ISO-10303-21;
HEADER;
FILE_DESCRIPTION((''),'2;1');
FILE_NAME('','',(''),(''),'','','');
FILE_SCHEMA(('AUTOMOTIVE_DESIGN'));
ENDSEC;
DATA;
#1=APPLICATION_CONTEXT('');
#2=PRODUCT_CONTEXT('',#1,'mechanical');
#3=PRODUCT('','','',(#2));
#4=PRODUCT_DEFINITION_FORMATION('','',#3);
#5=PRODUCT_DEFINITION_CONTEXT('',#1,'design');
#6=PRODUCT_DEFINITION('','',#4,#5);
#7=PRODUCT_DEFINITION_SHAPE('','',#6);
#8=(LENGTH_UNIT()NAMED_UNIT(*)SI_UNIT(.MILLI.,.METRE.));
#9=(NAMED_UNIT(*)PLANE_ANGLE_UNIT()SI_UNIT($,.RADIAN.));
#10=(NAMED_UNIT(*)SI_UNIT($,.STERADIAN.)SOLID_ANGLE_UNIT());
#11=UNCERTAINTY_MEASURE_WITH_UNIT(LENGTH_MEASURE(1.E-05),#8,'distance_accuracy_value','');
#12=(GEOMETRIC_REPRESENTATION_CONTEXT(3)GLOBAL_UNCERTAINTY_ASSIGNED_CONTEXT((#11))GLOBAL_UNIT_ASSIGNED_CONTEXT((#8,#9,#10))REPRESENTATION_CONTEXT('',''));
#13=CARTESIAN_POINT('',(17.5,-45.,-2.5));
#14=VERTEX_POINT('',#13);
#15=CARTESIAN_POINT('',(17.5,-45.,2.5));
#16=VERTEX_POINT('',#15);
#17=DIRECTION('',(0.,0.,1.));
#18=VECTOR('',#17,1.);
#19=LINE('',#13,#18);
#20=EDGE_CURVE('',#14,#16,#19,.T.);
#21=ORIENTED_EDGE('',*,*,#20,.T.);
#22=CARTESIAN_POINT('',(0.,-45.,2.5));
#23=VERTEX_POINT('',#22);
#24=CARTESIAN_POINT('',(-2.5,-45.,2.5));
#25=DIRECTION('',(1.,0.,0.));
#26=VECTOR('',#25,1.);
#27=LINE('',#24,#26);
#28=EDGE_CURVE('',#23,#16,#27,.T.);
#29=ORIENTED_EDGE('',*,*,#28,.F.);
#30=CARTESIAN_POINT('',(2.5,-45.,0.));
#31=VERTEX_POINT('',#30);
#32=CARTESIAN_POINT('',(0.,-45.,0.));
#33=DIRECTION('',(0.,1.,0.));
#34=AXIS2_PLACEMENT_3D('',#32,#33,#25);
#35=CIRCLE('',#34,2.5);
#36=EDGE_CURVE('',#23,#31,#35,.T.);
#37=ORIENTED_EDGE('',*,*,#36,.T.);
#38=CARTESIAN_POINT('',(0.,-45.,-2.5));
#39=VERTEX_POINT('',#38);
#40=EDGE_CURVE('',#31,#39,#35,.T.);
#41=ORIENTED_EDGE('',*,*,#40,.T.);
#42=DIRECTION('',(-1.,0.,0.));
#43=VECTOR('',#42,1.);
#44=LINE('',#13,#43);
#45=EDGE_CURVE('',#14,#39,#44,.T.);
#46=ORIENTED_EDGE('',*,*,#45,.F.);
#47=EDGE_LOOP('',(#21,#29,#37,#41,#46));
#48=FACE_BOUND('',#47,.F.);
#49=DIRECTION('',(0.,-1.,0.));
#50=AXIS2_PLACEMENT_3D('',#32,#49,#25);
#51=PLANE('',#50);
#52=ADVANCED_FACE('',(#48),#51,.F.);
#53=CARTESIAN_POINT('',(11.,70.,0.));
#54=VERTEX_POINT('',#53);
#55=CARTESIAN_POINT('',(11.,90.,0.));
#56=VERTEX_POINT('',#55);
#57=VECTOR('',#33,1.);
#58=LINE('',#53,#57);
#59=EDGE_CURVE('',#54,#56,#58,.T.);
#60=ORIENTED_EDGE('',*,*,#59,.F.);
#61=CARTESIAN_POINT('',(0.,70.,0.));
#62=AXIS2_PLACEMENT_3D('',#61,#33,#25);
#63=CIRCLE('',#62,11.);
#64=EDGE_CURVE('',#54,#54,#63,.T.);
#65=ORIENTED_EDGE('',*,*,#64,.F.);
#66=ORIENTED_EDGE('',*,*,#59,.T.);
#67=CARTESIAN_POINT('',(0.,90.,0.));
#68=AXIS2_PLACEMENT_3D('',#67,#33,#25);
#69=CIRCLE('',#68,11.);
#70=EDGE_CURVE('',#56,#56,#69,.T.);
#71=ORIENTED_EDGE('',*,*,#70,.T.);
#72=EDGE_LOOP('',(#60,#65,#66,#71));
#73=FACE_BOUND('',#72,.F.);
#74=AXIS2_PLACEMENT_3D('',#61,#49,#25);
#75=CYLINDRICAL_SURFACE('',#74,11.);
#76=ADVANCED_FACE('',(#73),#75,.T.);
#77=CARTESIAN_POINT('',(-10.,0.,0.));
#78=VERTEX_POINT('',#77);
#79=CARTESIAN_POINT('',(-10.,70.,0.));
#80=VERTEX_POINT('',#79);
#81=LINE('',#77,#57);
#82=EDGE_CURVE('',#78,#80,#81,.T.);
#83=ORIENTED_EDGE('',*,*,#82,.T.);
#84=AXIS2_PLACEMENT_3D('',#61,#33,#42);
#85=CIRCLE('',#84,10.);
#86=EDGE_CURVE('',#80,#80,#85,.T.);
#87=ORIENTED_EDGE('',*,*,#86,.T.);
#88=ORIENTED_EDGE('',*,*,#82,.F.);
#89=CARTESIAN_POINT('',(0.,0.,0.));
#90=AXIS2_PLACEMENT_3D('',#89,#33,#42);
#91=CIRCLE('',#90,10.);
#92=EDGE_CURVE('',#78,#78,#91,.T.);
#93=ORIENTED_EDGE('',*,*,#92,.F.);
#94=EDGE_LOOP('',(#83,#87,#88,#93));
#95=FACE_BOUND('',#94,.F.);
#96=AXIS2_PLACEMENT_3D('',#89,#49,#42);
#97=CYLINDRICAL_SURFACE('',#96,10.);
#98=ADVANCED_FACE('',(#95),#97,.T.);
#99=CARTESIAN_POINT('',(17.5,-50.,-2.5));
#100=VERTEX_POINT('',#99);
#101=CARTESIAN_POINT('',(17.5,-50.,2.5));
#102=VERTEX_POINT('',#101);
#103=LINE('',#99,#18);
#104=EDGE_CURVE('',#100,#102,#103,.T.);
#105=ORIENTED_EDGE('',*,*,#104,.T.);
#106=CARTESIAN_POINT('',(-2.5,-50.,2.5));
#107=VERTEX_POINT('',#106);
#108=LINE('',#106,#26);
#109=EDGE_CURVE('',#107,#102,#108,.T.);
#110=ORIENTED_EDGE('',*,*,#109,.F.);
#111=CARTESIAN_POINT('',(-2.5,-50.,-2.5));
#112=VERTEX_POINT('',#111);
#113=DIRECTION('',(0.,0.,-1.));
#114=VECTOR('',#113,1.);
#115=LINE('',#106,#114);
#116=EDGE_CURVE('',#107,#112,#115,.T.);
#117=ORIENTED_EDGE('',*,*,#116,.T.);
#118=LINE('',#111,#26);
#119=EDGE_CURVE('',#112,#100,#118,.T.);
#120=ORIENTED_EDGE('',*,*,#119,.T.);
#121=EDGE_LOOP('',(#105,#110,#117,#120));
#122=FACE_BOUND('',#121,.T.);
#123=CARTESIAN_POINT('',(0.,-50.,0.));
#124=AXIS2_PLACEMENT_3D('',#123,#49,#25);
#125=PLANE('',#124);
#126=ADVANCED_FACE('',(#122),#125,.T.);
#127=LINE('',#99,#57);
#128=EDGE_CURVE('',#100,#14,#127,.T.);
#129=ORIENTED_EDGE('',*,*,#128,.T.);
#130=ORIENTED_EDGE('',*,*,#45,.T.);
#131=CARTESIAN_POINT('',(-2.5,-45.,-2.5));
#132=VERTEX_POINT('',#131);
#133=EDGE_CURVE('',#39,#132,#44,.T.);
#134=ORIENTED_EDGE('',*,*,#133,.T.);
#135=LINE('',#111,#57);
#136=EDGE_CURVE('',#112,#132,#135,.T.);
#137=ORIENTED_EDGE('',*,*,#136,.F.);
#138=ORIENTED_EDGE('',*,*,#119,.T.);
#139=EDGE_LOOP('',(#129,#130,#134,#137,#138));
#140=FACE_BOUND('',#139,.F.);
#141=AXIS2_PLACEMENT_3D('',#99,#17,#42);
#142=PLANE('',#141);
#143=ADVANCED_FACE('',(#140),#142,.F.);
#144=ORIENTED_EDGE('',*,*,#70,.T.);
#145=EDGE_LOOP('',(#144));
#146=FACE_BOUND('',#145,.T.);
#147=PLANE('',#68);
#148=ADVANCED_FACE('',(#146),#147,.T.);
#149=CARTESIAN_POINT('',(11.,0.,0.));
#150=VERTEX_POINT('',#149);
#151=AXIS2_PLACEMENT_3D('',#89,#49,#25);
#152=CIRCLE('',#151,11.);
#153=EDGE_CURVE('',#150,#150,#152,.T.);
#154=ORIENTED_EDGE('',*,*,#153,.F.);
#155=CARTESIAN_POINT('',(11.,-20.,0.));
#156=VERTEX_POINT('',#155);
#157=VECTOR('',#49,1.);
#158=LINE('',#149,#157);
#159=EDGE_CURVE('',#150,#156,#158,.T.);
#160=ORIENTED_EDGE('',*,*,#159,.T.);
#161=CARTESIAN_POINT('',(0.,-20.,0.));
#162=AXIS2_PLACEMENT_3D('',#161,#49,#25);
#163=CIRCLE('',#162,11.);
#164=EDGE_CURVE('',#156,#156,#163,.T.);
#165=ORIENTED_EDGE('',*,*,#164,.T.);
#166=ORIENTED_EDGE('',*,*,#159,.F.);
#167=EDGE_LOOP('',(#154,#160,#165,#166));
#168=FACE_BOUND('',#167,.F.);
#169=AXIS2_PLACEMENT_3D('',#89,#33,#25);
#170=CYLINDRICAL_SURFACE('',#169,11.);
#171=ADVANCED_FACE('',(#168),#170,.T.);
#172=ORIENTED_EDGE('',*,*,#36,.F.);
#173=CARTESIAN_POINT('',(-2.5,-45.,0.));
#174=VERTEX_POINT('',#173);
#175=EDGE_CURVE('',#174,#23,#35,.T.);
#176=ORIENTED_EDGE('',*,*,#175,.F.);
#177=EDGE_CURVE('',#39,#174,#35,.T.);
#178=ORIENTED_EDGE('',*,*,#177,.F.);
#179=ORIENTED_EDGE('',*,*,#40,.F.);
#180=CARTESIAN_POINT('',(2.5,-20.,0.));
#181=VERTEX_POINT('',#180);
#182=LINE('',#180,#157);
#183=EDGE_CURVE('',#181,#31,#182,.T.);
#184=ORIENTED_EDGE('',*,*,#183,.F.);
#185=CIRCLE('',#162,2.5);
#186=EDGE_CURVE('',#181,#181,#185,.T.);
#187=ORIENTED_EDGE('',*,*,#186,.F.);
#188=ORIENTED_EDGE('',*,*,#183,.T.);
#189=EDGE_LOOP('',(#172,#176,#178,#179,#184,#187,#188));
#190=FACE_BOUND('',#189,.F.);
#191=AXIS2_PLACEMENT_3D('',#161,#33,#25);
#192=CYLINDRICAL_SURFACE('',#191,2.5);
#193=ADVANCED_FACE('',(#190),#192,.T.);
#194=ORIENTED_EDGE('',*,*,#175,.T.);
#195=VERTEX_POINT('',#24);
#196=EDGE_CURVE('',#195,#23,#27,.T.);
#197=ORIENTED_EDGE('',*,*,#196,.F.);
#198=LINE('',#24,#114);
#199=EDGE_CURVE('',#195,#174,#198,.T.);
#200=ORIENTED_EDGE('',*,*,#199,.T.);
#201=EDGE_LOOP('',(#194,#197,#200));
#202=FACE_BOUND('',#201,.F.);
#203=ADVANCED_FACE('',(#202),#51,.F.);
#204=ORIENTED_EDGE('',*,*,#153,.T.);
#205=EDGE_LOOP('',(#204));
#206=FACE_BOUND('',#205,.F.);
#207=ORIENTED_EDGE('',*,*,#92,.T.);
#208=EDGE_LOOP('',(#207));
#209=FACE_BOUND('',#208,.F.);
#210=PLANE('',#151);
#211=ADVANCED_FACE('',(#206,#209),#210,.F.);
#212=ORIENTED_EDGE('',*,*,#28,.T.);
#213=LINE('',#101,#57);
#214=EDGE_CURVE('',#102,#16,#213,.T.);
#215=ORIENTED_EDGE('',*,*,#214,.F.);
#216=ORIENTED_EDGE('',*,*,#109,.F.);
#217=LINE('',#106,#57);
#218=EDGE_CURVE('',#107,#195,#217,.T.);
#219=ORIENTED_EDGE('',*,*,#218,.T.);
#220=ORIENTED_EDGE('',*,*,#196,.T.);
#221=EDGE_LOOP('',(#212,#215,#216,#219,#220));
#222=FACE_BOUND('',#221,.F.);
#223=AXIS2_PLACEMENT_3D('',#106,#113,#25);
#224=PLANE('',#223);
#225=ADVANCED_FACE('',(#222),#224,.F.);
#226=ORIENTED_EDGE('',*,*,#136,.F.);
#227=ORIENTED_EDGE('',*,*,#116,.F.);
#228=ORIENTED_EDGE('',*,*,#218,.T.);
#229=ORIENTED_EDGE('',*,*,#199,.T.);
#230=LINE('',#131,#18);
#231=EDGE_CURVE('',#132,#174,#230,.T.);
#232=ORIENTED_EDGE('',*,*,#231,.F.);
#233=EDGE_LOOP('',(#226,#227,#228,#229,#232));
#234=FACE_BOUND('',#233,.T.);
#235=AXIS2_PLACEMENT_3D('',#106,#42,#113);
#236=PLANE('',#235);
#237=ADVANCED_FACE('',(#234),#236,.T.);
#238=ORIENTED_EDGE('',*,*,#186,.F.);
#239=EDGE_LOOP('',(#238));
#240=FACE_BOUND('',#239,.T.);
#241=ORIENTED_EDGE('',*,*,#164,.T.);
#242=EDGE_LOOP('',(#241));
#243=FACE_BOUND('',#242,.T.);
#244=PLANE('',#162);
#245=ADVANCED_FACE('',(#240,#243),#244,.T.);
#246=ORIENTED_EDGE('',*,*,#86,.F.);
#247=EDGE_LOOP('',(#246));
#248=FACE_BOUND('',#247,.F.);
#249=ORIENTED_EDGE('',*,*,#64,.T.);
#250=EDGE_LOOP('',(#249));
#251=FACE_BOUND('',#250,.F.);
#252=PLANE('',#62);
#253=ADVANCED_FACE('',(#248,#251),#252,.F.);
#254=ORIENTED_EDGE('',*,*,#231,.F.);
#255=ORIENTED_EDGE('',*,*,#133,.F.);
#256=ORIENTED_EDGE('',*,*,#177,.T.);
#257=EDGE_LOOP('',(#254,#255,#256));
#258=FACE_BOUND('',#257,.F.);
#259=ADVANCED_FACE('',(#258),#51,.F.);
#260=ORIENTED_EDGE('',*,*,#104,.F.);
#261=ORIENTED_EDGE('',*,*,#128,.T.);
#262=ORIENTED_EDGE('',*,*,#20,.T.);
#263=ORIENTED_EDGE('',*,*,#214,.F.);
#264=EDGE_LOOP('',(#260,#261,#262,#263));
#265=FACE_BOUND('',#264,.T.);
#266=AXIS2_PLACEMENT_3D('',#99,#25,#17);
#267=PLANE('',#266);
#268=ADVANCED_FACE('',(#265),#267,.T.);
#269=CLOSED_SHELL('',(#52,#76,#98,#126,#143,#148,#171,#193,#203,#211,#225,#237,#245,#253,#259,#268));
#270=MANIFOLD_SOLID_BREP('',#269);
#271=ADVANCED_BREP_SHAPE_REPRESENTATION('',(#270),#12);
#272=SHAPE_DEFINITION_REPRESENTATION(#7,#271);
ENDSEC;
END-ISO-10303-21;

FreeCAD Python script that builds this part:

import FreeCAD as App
import Part
import Sketcher
from FreeCAD import Vector
Q = App.Units.Quantity


def add_polygon(sketch, points):
    """Adds a closed chain of lines whose ends are joined by coincident constraints."""
    first, n = sketch.GeometryCount, len(points)
    for a, b in zip(points, points[1:] + points[:1]):
        sketch.addGeometry(Part.LineSegment(App.Vector(*a, 0), App.Vector(*b, 0)), False)
    for i in range(n):
        sketch.addConstraint(Sketcher.Constraint("Coincident", first + i, 2, first + (i + 1) % n, 1))

doc = App.newDocument("Part")
body = doc.addObject("PartDesign::Body", "Body")

# Sketch on XZ plane
sketch1 = body.newObject("Sketcher::SketchObject", "Sketch")
sketch1.AttachmentSupport = (doc.getObject("XZ_Plane"), [""])
sketch1.MapMode = "FlatFace"
sketch1.addGeometry(Part.Circle(Vector(0, 0, 0), Vector(0, 0, 1), 10), False)
sketch1.addConstraint([
    Sketcher.Constraint("Coincident", 0, 3, -1, 1),
    Sketcher.Constraint("Diameter", 0, Q("20 mm")),
])
pad1 = body.newObject("PartDesign::Pad", "Pad")
pad1.Profile = sketch1
pad1.Length = 70
pad1.Reversed = True

# Sketch on XZ plane
sketch2 = body.newObject("Sketcher::SketchObject", "Sketch001")
sketch2.AttachmentSupport = (doc.getObject("XZ_Plane"), [""])
sketch2.MapMode = "FlatFace"
sketch2.AttachmentOffset = App.Placement(Vector(0, 0, -70), App.Rotation())
sketch2.addGeometry(Part.Circle(Vector(0, 0, 0), Vector(0, 0, 1), 11), False)
sketch2.addConstraint([
    Sketcher.Constraint("Coincident", 0, 3, -1, 1),
    Sketcher.Constraint("Diameter", 0, Q("22 mm")),
])
pad2 = body.newObject("PartDesign::Pad", "Pad001")
pad2.Profile = sketch2
pad2.Length = 20
pad2.Reversed = True

# Sketch on XZ plane
sketch3 = body.newObject("Sketcher::SketchObject", "Sketch002")
sketch3.AttachmentSupport = (doc.getObject("XZ_Plane"), [""])
sketch3.MapMode = "FlatFace"
sketch3.addGeometry(Part.Circle(Vector(0, 0, 0), Vector(0, 0, 1), 11), False)
sketch3.addConstraint([
    Sketcher.Constraint("Coincident", 0, 3, -1, 1),
    Sketcher.Constraint("Diameter", 0, Q("22 mm")),
])
pad3 = body.newObject("PartDesign::Pad", "Pad002")
pad3.Profile = sketch3
pad3.Length = 20

# Sketch on XZ plane
sketch4 = body.newObject("Sketcher::SketchObject", "Sketch003")
sketch4.AttachmentSupport = (doc.getObject("XZ_Plane"), [""])
sketch4.MapMode = "FlatFace"
sketch4.AttachmentOffset = App.Placement(Vector(0, 0, 20), App.Rotation())
sketch4.addGeometry(Part.Circle(Vector(0, 0, 0), Vector(0, 0, 1), 2.5), False)
sketch4.addConstraint([
    Sketcher.Constraint("Coincident", 0, 3, -1, 1),
    Sketcher.Constraint("Diameter", 0, Q("5 mm")),
])
pad4 = body.newObject("PartDesign::Pad", "Pad003")
pad4.Profile = sketch4
pad4.Length = 30

# Sketch on XZ plane
sketch5 = body.newObject("Sketcher::SketchObject", "Sketch004")
sketch5.AttachmentSupport = (doc.getObject("XZ_Plane"), [""])
sketch5.MapMode = "FlatFace"
sketch5.AttachmentOffset = App.Placement(Vector(0, 0, 50), App.Rotation())
add_polygon(sketch5, [(18, 2), (-2, 2), (-2, -2), (18, -2)])  # lines 0-3
sketch5.addConstraint([
    Sketcher.Constraint("Horizontal", 0),
    Sketcher.Constraint("Vertical", 1),
    Sketcher.Constraint("Horizontal", 2),
    Sketcher.Constraint("Vertical", 3),
    Sketcher.Constraint("DistanceX", 0, 2, 0, 1, Q("20 mm")),
    Sketcher.Constraint("DistanceY", 1, 2, 1, 1, Q("5 mm")),
    Sketcher.Constraint("DistanceX", 0, 2, -1, 1, Q("2.5 mm")),
    Sketcher.Constraint("DistanceY", -1, 1, 0, 2, Q("2.5 mm")),
])
pad5 = body.newObject("PartDesign::Pad", "Pad004")
pad5.Profile = sketch5
pad5.Length = 5
pad5.Reversed = True

doc.recompute()
